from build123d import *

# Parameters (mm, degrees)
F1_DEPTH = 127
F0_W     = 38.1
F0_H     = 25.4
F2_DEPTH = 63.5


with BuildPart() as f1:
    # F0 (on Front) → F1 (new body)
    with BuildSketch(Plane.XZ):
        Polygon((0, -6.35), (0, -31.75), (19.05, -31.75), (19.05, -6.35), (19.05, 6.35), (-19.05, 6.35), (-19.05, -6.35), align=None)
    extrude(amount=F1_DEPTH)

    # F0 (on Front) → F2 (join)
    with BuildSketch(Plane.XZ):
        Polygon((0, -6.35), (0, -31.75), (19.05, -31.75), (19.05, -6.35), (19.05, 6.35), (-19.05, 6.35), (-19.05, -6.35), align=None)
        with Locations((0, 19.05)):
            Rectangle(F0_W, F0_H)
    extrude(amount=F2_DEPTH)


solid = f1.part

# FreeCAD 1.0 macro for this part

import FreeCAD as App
import Part
import Sketcher
Q = App.Units.Quantity


def add_polygon(sketch, points):
    """Adds a closed chain of lines whose ends are joined by coincident constraints."""
    first, n = sketch.GeometryCount, len(points)
    for a, b in zip(points, points[1:] + points[:1]):
        sketch.addGeometry(Part.LineSegment(App.Vector(*a, 0), App.Vector(*b, 0)), False)
    for i in range(n):
        sketch.addConstraint(Sketcher.Constraint("Coincident", first + i, 2, first + (i + 1) % n, 1))

doc = App.newDocument("Part")
body = doc.addObject("PartDesign::Body", "Body")

# Sketch on XZ plane
sketch1 = doc.addObject("Sketcher::SketchObject", "Sketch")
body.addObject(sketch1)
sketch1.AttachmentSupport = (doc.XZ_Plane, [""])
sketch1.MapMode = "FlatFace"
add_polygon(sketch1, [(0, -6), (0, -32), (19, -32), (19, 6), (-19, 6), (-19, -6)])  # lines 0-5
sketch1.addConstraint([
    Sketcher.Constraint("Vertical", 0),
    Sketcher.Constraint("Horizontal", 1),
    Sketcher.Constraint("Vertical", 2),
    Sketcher.Constraint("Horizontal", 3),
    Sketcher.Constraint("Vertical", 4),
    Sketcher.Constraint("Horizontal", 5),
    Sketcher.Constraint("Symmetric", 2, 2, 4, 2, -1, 1),
    Sketcher.Constraint("PointOnObject", 0, 2, -2),
    Sketcher.Constraint("Equal", 3, 2),
    Sketcher.Constraint("DistanceY", 0, 2, 0, 1, Q("1 in")),
    Sketcher.Constraint("DistanceX", 3, 2, 3, 1, Q("1.5 in")),
])
pad1 = doc.addObject("PartDesign::Pad", "Pad")
body.addObject(pad1)
pad1.Profile = sketch1
pad1.Length = Q("5 in")

# Sketch on XZ plane
sketch2 = doc.addObject("Sketcher::SketchObject", "Sketch001")
body.addObject(sketch2)
sketch2.AttachmentSupport = (doc.XZ_Plane, [""])
sketch2.MapMode = "FlatFace"
add_polygon(sketch2, [(0, -6), (0, -32), (19, -32), (19, 32), (-19, 32), (-19, -6)])  # lines 0-5
sketch2.addConstraint([
    Sketcher.Constraint("Vertical", 0),
    Sketcher.Constraint("Horizontal", 1),
    Sketcher.Constraint("Vertical", 2),
    Sketcher.Constraint("Horizontal", 3),
    Sketcher.Constraint("Vertical", 4),
    Sketcher.Constraint("Horizontal", 5),
    Sketcher.Constraint("Symmetric", 1, 2, 3, 2, -1, 1),
    Sketcher.Constraint("PointOnObject", 0, 2, -2),
    Sketcher.Constraint("Equal", 3, 4),
    Sketcher.Constraint("DistanceY", 0, 2, 0, 1, Q("1 in")),
    Sketcher.Constraint("DistanceX", 3, 2, 3, 1, Q("1.5 in")),
])
pad2 = doc.addObject("PartDesign::Pad", "Pad001")
body.addObject(pad2)
pad2.Profile = sketch2
pad2.Length = Q("2.5 in")

doc.recompute()
